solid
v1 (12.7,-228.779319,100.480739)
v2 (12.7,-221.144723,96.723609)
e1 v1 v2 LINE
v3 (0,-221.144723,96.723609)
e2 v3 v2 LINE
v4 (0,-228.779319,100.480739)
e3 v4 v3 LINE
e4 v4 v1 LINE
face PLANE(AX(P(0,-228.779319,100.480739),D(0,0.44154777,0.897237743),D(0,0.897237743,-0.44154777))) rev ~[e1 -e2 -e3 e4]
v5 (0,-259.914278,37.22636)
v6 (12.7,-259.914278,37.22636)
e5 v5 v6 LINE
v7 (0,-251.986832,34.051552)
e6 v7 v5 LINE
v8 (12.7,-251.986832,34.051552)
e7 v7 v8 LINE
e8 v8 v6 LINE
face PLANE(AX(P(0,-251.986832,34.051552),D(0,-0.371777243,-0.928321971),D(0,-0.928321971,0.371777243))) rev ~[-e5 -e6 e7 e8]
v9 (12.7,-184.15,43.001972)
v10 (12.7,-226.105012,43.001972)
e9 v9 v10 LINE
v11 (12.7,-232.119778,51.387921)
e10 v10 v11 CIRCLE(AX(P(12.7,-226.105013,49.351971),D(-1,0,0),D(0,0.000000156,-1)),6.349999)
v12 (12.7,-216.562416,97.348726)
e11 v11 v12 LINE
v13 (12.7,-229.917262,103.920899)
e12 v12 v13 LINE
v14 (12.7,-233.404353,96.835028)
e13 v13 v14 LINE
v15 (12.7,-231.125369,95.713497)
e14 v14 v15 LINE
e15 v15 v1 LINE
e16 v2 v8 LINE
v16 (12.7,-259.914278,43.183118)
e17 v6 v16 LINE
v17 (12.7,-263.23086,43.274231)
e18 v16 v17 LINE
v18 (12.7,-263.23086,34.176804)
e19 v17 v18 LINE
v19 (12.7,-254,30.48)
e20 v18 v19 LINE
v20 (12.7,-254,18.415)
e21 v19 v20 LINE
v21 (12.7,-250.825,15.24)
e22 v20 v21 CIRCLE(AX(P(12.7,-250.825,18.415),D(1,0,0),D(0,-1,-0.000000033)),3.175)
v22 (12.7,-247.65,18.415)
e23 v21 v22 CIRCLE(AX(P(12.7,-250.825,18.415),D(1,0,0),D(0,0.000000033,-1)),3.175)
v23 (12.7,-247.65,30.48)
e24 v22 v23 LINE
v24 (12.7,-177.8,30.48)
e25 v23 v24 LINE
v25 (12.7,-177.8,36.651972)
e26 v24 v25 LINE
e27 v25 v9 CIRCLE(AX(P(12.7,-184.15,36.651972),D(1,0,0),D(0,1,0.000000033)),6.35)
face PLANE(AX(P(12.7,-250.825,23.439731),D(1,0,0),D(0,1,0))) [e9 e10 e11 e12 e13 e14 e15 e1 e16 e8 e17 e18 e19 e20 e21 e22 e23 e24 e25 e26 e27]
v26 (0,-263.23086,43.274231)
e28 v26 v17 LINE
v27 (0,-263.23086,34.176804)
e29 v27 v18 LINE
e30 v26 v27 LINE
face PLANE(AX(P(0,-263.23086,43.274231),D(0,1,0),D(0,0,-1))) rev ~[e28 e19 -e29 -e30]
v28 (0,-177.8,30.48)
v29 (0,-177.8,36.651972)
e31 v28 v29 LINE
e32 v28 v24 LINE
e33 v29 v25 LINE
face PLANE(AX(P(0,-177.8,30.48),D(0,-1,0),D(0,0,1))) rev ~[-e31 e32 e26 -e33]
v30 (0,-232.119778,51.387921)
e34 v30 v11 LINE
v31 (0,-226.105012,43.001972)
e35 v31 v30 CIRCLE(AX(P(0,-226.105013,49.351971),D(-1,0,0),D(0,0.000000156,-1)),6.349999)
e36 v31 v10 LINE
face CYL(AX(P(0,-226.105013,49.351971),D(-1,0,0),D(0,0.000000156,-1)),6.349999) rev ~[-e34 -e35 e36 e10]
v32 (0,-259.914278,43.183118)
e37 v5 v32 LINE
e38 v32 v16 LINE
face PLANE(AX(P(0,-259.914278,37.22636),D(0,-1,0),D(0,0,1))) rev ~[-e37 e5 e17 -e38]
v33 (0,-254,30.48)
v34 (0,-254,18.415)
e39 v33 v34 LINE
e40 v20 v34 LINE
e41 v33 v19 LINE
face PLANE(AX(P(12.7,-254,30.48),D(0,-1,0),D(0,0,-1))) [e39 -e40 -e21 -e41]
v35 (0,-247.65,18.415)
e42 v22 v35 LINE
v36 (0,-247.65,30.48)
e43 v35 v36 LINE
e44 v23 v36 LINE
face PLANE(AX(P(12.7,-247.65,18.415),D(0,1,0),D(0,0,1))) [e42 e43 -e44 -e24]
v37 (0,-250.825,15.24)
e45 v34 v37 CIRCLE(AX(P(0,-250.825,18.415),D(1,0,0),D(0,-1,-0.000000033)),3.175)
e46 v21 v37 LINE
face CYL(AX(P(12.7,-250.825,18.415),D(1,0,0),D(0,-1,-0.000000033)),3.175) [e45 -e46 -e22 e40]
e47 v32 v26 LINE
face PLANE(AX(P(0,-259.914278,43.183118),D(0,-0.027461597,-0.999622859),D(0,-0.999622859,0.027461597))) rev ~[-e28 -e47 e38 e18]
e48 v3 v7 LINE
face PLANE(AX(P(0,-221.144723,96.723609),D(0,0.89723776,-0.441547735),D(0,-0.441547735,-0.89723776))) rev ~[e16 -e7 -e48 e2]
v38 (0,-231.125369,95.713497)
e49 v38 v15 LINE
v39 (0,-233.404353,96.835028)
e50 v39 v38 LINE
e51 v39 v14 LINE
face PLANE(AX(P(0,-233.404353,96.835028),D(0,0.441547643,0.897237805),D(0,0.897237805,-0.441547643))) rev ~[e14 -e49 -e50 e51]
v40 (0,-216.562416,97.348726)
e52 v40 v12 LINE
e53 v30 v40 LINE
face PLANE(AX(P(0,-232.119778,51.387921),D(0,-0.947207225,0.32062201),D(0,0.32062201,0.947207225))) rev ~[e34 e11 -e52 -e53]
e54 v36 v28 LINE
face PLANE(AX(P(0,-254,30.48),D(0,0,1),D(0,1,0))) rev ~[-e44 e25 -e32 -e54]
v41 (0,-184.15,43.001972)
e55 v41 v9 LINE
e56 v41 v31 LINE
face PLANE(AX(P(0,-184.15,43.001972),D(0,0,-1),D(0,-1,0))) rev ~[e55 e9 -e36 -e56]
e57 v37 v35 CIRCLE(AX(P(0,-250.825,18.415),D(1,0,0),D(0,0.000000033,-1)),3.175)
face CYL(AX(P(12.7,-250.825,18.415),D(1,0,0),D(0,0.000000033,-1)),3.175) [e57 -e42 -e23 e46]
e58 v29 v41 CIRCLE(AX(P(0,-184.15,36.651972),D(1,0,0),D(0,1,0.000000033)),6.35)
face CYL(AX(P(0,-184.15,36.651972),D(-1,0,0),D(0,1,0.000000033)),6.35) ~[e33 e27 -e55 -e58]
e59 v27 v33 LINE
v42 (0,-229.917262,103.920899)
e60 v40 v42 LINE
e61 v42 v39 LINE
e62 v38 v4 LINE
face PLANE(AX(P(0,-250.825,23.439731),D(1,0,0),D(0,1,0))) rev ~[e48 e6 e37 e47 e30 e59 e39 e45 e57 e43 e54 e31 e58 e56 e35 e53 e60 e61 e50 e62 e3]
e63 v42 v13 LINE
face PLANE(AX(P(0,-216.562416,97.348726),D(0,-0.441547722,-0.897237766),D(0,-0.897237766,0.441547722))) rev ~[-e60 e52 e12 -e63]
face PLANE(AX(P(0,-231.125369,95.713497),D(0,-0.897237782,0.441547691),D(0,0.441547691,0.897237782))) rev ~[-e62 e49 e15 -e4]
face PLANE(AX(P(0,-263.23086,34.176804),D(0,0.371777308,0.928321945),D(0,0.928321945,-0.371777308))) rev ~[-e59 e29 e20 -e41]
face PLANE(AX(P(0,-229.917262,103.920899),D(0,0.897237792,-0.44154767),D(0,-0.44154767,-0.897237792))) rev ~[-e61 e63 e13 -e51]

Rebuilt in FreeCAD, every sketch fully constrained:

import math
import FreeCAD as App
import Part
import Sketcher
from FreeCAD import Vector
Q = App.Units.Quantity

doc = App.newDocument("Part")
body = doc.addObject("PartDesign::Body", "Body")

# Sketch on YZ plane
sketch1 = body.newObject("Sketcher::SketchObject", "Sketch")
sketch1.AttachmentSupport = (doc.getObject("YZ_Plane"), [""])
sketch1.MapMode = "FlatFace"
sketch1.addGeometry([
    Part.LineSegment(Vector(-254, 30.48, 0), Vector(-177.8, 30.48, 0)),  # 0
    Part.LineSegment(Vector(-177.8, 30.48, 0), Vector(-177.8, 36.651972, 0)),  # 1
    Part.ArcOfCircle(Part.Circle(Vector(-184.15, 36.651972, 0), Vector(0, 0, 1), 6.35), math.radians(0.000002), math.radians(89.999998)),  # 2
    Part.LineSegment(Vector(-184.15, 43.001972, 0), Vector(-226.105012, 43.001972, 0)),  # 3
    Part.ArcOfCircle(Part.Circle(Vector(-226.105013, 49.351971, 0), Vector(0, 0, 1), 6.349999), math.radians(161.299452), math.radians(270.000009)),  # 4
    Part.LineSegment(Vector(-232.119778, 51.387921, 0), Vector(-216.562416, 97.348726, 0)),  # 5
    Part.LineSegment(Vector(-216.562416, 97.348726, 0), Vector(-229.917262, 103.920899, 0)),  # 6
    Part.LineSegment(Vector(-229.917262, 103.920899, 0), Vector(-233.404353, 96.835028, 0)),  # 7
    Part.LineSegment(Vector(-233.404353, 96.835028, 0), Vector(-231.125369, 95.713497, 0)),  # 8
    Part.LineSegment(Vector(-231.125369, 95.713497, 0), Vector(-228.779319, 100.480739, 0)),  # 9
    Part.LineSegment(Vector(-228.779319, 100.480739, 0), Vector(-221.144723, 96.723609, 0)),  # 10
    Part.LineSegment(Vector(-221.144723, 96.723609, 0), Vector(-251.986832, 34.051552, 0)),  # 11
    Part.LineSegment(Vector(-251.986832, 34.051552, 0), Vector(-259.914278, 37.22636, 0)),  # 12
    Part.LineSegment(Vector(-259.914278, 37.22636, 0), Vector(-259.914278, 43.183118, 0)),  # 13
    Part.LineSegment(Vector(-259.914278, 43.183118, 0), Vector(-263.23086, 43.274231, 0)),  # 14
    Part.LineSegment(Vector(-263.23086, 43.274231, 0), Vector(-263.23086, 34.176804, 0)),  # 15
    Part.LineSegment(Vector(-263.23086, 34.176804, 0), Vector(-254, 30.48, 0)),  # 16
], False)
sketch1.addConstraint([
    Sketcher.Constraint("Coincident", 0, 2, 1, 1),
    Sketcher.Constraint("Tangent", 1, 2, 2, 1),
    Sketcher.Constraint("Tangent", 2, 2, 3, 1),
    Sketcher.Constraint("Tangent", 3, 2, 4, 2),
    Sketcher.Constraint("Tangent", 4, 1, 5, 1),
    Sketcher.Constraint("Coincident", 5, 2, 6, 1),
    Sketcher.Constraint("Coincident", 6, 2, 7, 1),
    Sketcher.Constraint("Coincident", 7, 2, 8, 1),
    Sketcher.Constraint("Coincident", 8, 2, 9, 1),
    Sketcher.Constraint("Coincident", 9, 2, 10, 1),
    Sketcher.Constraint("Coincident", 10, 2, 11, 1),
    Sketcher.Constraint("Coincident", 11, 2, 12, 1),
    Sketcher.Constraint("Coincident", 12, 2, 13, 1),
    Sketcher.Constraint("Coincident", 13, 2, 14, 1),
    Sketcher.Constraint("Coincident", 14, 2, 15, 1),
    Sketcher.Constraint("Coincident", 15, 2, 16, 1),
    Sketcher.Constraint("Coincident", 16, 2, 0, 1),
    Sketcher.Constraint("Horizontal", 0),
    Sketcher.Constraint("Vertical", 1),
    Sketcher.Constraint("Horizontal", 3),
    Sketcher.Constraint("Vertical", 13),
    Sketcher.Constraint("Vertical", 15),
    Sketcher.Constraint("Equal", 2, 4),
    Sketcher.Constraint("Perpendicular", 6, 7),
    Sketcher.Constraint("Perpendicular", 7, 8),
    Sketcher.Constraint("Perpendicular", 8, 9),
    Sketcher.Constraint("Perpendicular", 9, 10),
    Sketcher.Constraint("Perpendicular", 10, 11),
    Sketcher.Constraint("Parallel", 12, 16),
    Sketcher.Constraint("DistanceX", 0, 1, 0, 2, Q("3 in")),
    Sketcher.Constraint("Radius", 2, Q("0.25 in")),
    Sketcher.Constraint("DistanceX", 0, 2, -1, 1, Q("7 in")),
    Sketcher.Constraint("Distance", 8, Q("0.1 in")),
    Sketcher.Constraint("DistanceY", -1, 1, 0, 2, Q("1.2 in")),
    Sketcher.Constraint("Distance", 11, Q("2.75 in")),
    Sketcher.Constraint("Distance", 6, Q("0.586 in")),
    Sketcher.Constraint("Distance", 10, Q("0.335 in")),
    Sketcher.Constraint("DistanceX", 3, 2, 3, 1, Q("41.955012 mm")),
    Sketcher.Constraint("DistanceY", 13, 1, 13, 2, Q("5.956758 mm")),
    Sketcher.Constraint("DistanceY", -1, 1, 6, 2, Q("103.920899 mm")),
    Sketcher.Constraint("DistanceY", 7, 2, 5, 2, Q("0.513698 mm")),
    Sketcher.Constraint("DistanceX", 12, 2, 4, 1, Q("27.7945 mm")),
    Sketcher.Constraint("Distance", 5, Q("48.522439 mm")),
    Sketcher.Constraint("Distance", 7, Q("7.897428 mm")),
    Sketcher.Constraint("DistanceY", 1, 1, 1, 2, Q("6.171972 mm")),
    Sketcher.Constraint("DistanceY", 15, 2, 15, 1, Q("9.097427 mm")),
    Sketcher.Constraint("DistanceX", 9, 2, -1, 1, Q("228.779319 mm")),
    Sketcher.Constraint("DistanceY", -1, 1, 12, 2, Q("37.22636 mm")),
    Sketcher.Constraint("DistanceX", 14, 2, -1, 1, Q("263.23086 mm")),
])
pad1 = body.newObject("PartDesign::Pad", "Pad")
pad1.Profile = sketch1
pad1.Length = Q("0.5 in")

# Sketch on YZ plane
sketch2 = body.newObject("Sketcher::SketchObject", "Sketch001")
sketch2.AttachmentSupport = (doc.getObject("YZ_Plane"), [""])
sketch2.MapMode = "FlatFace"
sketch2.AttachmentOffset = App.Placement(Vector(0, 0, 0.5 * 25.4), App.Rotation())
sketch2.addGeometry([
    Part.LineSegment(Vector(-247.65, 30.48, 0), Vector(-254, 30.48, 0)),  # 0
    Part.LineSegment(Vector(-254, 30.48, 0), Vector(-254, 18.415, 0)),  # 1
    Part.ArcOfCircle(Part.Circle(Vector(-250.825, 18.415, 0), Vector(0, 0, 1), 3.175), math.radians(-179.999998), math.radians(-90.000002)),  # 2
    Part.ArcOfCircle(Part.Circle(Vector(-250.825, 18.415, 0), Vector(0, 0, 1), 3.175), math.radians(-89.999998), math.radians(-0.000002)),  # 3
    Part.LineSegment(Vector(-247.65, 18.415, 0), Vector(-247.65, 30.48, 0)),  # 4
], False)
sketch2.addConstraint([
    Sketcher.Constraint("Coincident", 0, 2, 1, 1),
    Sketcher.Constraint("Tangent", 1, 2, 2, 1),
    Sketcher.Constraint("Tangent", 2, 2, 3, 1),
    Sketcher.Constraint("Tangent", 3, 2, 4, 1),
    Sketcher.Constraint("Coincident", 4, 2, 0, 1),
    Sketcher.Constraint("Horizontal", 0),
    Sketcher.Constraint("Vertical", 1),
    Sketcher.Constraint("Vertical", 4),
    Sketcher.Constraint("Equal", 2, 3),
    Sketcher.Constraint("Vertical", 3, 3, 2, 2),
    Sketcher.Constraint("DistanceX", 0, 2, -1, 1, Q("10 in")),
    Sketcher.Constraint("Radius", 2, Q("0.125 in")),
    Sketcher.Constraint("DistanceY", -1, 1, 0, 2, Q("1.2 in")),
    Sketcher.Constraint("DistanceY", -1, 1, 2, 2, Q("0.6 in")),
])
pad2 = body.newObject("PartDesign::Pad", "Pad001")
pad2.Profile = sketch2
pad2.Length = Q("0.5 in")
pad2.Reversed = True

doc.recompute()
